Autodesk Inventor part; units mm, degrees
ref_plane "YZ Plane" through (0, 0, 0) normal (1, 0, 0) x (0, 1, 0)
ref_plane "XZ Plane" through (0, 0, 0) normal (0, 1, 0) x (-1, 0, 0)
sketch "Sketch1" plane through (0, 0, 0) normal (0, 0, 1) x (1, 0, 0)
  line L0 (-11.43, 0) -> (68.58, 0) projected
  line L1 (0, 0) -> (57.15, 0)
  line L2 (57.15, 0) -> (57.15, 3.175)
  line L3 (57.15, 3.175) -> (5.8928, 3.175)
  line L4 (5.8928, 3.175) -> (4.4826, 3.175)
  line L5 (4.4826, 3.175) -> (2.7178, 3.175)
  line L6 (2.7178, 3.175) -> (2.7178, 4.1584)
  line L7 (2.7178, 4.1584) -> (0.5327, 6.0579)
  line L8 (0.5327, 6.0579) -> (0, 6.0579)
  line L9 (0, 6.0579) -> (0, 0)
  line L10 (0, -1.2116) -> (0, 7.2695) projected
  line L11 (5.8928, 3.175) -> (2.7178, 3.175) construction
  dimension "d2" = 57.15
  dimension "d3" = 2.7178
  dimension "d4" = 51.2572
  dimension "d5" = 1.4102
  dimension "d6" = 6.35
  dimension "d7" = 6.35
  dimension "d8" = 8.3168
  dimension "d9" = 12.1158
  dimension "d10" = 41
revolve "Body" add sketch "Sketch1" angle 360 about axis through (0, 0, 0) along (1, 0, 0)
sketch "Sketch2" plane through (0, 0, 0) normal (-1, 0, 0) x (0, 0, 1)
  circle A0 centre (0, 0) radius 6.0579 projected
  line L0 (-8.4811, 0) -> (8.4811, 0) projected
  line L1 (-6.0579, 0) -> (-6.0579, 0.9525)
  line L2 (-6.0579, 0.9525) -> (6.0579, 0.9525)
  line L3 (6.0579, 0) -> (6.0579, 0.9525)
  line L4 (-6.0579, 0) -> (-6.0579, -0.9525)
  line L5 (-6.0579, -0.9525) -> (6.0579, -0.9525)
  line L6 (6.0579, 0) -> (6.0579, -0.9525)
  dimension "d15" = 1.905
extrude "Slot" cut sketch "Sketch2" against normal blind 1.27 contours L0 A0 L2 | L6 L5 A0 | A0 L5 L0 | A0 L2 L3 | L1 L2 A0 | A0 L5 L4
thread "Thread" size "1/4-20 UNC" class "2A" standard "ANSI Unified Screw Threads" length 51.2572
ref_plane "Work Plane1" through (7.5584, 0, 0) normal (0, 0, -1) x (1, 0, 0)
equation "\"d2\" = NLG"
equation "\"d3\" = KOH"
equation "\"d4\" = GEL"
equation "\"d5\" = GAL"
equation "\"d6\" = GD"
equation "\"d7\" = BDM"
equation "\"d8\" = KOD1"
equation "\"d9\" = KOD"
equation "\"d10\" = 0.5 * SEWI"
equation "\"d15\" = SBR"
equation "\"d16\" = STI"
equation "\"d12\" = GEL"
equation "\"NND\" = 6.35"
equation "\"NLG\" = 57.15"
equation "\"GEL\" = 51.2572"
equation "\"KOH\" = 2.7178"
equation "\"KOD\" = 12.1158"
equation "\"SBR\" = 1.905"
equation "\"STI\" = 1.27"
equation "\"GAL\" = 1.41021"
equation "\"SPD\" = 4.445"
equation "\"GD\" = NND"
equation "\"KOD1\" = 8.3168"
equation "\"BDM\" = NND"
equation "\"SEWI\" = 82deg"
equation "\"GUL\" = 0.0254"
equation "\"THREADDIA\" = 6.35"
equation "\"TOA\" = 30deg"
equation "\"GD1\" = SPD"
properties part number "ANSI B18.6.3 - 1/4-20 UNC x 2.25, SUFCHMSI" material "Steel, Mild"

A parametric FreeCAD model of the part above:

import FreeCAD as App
import Part
import Sketcher
Q = App.Units.Quantity

doc = App.newDocument("Part")
body = doc.addObject("PartDesign::Body", "Body")

# Sketch on XY plane
sketch1 = body.newObject("Sketcher::SketchObject", "Sketch")
sketch1.AttachmentSupport = (doc.getObject("XY_Plane"), [""])
sketch1.MapMode = "FlatFace"
sketch1.addGeometry(Part.LineSegment(App.Vector(0, 6.1, 0), App.Vector(0, 0, 0)), False)
sketch1.addGeometry(Part.LineSegment(App.Vector(0, 0, 0), App.Vector(57.1, 0, 0)), False)
sketch1.addGeometry(Part.LineSegment(App.Vector(57.1, 0, 0), App.Vector(57.1, 3.2, 0)), False)
sketch1.addGeometry(Part.LineSegment(App.Vector(57.1, 3.2, 0), App.Vector(2.7, 3.2, 0)), False)
sketch1.addGeometry(Part.LineSegment(App.Vector(2.7, 3.2, 0), App.Vector(2.7, 4.2, 0)), False)
sketch1.addGeometry(Part.LineSegment(App.Vector(2.7, 4.2, 0), App.Vector(0.5, 6.1, 0)), False)
sketch1.addGeometry(Part.LineSegment(App.Vector(0.5, 6.1, 0), App.Vector(0, 6.1, 0)), False)
sketch1.addConstraint(Sketcher.Constraint("Coincident", 0, 2, 1, 1))
sketch1.addConstraint(Sketcher.Constraint("Coincident", 1, 2, 2, 1))
sketch1.addConstraint(Sketcher.Constraint("Coincident", 2, 2, 3, 1))
sketch1.addConstraint(Sketcher.Constraint("Coincident", 3, 2, 4, 1))
sketch1.addConstraint(Sketcher.Constraint("Coincident", 4, 2, 5, 1))
sketch1.addConstraint(Sketcher.Constraint("Coincident", 5, 2, 6, 1))
sketch1.addConstraint(Sketcher.Constraint("Coincident", 6, 2, 0, 1))
sketch1.addConstraint(Sketcher.Constraint("Vertical", 0))
sketch1.addConstraint(Sketcher.Constraint("Horizontal", 1))
sketch1.addConstraint(Sketcher.Constraint("Vertical", 2))
sketch1.addConstraint(Sketcher.Constraint("Horizontal", 3))
sketch1.addConstraint(Sketcher.Constraint("Vertical", 4))
sketch1.addConstraint(Sketcher.Constraint("Horizontal", 6))
sketch1.addConstraint(Sketcher.Constraint("Coincident", 0, 2, -1, 1))
sketch1.addConstraint(Sketcher.Constraint("DistanceX", 1, 1, 1, 2, Q("2.25 in")))
sketch1.addConstraint(Sketcher.Constraint("DistanceX", -1, 1, 3, 2, Q("0.107 in")))
sketch1.addConstraint(Sketcher.Constraint("Angle", 5, Q("138.9997 deg")))
sketch1.addConstraint(Sketcher.Constraint("DistanceY", 2, 1, 2, 2, Q("0.125 in")))
sketch1.addConstraint(Sketcher.Constraint("Distance", 5, Q("0.114 in")))
sketch1.addConstraint(Sketcher.Constraint("DistanceY", 0, 2, 0, 1, Q("0.2385 in")))
revolution = body.newObject("PartDesign::Revolution", "Revolution")
revolution.Profile = sketch1
revolution.ReferenceAxis = (sketch1, ["H_Axis"])
revolution.Angle = 360

# Sketch on YZ plane
sketch2 = body.newObject("Sketcher::SketchObject", "Sketch001")
sketch2.AttachmentSupport = (doc.getObject("YZ_Plane"), [""])
sketch2.MapMode = "FlatFace"
sketch2.addGeometry(Part.LineSegment(App.Vector(1, -6.1, 0), App.Vector(-1, -6.1, 0)), False)
sketch2.addGeometry(Part.LineSegment(App.Vector(-1, -6.1, 0), App.Vector(-1, 6.1, 0)), False)
sketch2.addGeometry(Part.LineSegment(App.Vector(-1, 6.1, 0), App.Vector(1, 6.1, 0)), False)
sketch2.addGeometry(Part.LineSegment(App.Vector(1, 6.1, 0), App.Vector(1, -6.1, 0)), False)
sketch2.addConstraint(Sketcher.Constraint("Coincident", 0, 2, 1, 1))
sketch2.addConstraint(Sketcher.Constraint("Coincident", 1, 2, 2, 1))
sketch2.addConstraint(Sketcher.Constraint("Coincident", 2, 2, 3, 1))
sketch2.addConstraint(Sketcher.Constraint("Coincident", 3, 2, 0, 1))
sketch2.addConstraint(Sketcher.Constraint("Horizontal", 0))
sketch2.addConstraint(Sketcher.Constraint("Vertical", 1))
sketch2.addConstraint(Sketcher.Constraint("Horizontal", 2))
sketch2.addConstraint(Sketcher.Constraint("Vertical", 3))
sketch2.addConstraint(Sketcher.Constraint("Symmetric", 0, 2, 2, 2, -1, 1))
sketch2.addConstraint(Sketcher.Constraint("DistanceX", 0, 2, 0, 1, Q("0.075 in")))
sketch2.addConstraint(Sketcher.Constraint("DistanceY", 1, 1, 1, 2, Q("0.477 in")))
pocket1 = body.newObject("PartDesign::Pocket", "Pocket")
pocket1.Profile = sketch2
pocket1.Length = Q("0.05 in")
pocket1.Reversed = True

doc.recompute()
